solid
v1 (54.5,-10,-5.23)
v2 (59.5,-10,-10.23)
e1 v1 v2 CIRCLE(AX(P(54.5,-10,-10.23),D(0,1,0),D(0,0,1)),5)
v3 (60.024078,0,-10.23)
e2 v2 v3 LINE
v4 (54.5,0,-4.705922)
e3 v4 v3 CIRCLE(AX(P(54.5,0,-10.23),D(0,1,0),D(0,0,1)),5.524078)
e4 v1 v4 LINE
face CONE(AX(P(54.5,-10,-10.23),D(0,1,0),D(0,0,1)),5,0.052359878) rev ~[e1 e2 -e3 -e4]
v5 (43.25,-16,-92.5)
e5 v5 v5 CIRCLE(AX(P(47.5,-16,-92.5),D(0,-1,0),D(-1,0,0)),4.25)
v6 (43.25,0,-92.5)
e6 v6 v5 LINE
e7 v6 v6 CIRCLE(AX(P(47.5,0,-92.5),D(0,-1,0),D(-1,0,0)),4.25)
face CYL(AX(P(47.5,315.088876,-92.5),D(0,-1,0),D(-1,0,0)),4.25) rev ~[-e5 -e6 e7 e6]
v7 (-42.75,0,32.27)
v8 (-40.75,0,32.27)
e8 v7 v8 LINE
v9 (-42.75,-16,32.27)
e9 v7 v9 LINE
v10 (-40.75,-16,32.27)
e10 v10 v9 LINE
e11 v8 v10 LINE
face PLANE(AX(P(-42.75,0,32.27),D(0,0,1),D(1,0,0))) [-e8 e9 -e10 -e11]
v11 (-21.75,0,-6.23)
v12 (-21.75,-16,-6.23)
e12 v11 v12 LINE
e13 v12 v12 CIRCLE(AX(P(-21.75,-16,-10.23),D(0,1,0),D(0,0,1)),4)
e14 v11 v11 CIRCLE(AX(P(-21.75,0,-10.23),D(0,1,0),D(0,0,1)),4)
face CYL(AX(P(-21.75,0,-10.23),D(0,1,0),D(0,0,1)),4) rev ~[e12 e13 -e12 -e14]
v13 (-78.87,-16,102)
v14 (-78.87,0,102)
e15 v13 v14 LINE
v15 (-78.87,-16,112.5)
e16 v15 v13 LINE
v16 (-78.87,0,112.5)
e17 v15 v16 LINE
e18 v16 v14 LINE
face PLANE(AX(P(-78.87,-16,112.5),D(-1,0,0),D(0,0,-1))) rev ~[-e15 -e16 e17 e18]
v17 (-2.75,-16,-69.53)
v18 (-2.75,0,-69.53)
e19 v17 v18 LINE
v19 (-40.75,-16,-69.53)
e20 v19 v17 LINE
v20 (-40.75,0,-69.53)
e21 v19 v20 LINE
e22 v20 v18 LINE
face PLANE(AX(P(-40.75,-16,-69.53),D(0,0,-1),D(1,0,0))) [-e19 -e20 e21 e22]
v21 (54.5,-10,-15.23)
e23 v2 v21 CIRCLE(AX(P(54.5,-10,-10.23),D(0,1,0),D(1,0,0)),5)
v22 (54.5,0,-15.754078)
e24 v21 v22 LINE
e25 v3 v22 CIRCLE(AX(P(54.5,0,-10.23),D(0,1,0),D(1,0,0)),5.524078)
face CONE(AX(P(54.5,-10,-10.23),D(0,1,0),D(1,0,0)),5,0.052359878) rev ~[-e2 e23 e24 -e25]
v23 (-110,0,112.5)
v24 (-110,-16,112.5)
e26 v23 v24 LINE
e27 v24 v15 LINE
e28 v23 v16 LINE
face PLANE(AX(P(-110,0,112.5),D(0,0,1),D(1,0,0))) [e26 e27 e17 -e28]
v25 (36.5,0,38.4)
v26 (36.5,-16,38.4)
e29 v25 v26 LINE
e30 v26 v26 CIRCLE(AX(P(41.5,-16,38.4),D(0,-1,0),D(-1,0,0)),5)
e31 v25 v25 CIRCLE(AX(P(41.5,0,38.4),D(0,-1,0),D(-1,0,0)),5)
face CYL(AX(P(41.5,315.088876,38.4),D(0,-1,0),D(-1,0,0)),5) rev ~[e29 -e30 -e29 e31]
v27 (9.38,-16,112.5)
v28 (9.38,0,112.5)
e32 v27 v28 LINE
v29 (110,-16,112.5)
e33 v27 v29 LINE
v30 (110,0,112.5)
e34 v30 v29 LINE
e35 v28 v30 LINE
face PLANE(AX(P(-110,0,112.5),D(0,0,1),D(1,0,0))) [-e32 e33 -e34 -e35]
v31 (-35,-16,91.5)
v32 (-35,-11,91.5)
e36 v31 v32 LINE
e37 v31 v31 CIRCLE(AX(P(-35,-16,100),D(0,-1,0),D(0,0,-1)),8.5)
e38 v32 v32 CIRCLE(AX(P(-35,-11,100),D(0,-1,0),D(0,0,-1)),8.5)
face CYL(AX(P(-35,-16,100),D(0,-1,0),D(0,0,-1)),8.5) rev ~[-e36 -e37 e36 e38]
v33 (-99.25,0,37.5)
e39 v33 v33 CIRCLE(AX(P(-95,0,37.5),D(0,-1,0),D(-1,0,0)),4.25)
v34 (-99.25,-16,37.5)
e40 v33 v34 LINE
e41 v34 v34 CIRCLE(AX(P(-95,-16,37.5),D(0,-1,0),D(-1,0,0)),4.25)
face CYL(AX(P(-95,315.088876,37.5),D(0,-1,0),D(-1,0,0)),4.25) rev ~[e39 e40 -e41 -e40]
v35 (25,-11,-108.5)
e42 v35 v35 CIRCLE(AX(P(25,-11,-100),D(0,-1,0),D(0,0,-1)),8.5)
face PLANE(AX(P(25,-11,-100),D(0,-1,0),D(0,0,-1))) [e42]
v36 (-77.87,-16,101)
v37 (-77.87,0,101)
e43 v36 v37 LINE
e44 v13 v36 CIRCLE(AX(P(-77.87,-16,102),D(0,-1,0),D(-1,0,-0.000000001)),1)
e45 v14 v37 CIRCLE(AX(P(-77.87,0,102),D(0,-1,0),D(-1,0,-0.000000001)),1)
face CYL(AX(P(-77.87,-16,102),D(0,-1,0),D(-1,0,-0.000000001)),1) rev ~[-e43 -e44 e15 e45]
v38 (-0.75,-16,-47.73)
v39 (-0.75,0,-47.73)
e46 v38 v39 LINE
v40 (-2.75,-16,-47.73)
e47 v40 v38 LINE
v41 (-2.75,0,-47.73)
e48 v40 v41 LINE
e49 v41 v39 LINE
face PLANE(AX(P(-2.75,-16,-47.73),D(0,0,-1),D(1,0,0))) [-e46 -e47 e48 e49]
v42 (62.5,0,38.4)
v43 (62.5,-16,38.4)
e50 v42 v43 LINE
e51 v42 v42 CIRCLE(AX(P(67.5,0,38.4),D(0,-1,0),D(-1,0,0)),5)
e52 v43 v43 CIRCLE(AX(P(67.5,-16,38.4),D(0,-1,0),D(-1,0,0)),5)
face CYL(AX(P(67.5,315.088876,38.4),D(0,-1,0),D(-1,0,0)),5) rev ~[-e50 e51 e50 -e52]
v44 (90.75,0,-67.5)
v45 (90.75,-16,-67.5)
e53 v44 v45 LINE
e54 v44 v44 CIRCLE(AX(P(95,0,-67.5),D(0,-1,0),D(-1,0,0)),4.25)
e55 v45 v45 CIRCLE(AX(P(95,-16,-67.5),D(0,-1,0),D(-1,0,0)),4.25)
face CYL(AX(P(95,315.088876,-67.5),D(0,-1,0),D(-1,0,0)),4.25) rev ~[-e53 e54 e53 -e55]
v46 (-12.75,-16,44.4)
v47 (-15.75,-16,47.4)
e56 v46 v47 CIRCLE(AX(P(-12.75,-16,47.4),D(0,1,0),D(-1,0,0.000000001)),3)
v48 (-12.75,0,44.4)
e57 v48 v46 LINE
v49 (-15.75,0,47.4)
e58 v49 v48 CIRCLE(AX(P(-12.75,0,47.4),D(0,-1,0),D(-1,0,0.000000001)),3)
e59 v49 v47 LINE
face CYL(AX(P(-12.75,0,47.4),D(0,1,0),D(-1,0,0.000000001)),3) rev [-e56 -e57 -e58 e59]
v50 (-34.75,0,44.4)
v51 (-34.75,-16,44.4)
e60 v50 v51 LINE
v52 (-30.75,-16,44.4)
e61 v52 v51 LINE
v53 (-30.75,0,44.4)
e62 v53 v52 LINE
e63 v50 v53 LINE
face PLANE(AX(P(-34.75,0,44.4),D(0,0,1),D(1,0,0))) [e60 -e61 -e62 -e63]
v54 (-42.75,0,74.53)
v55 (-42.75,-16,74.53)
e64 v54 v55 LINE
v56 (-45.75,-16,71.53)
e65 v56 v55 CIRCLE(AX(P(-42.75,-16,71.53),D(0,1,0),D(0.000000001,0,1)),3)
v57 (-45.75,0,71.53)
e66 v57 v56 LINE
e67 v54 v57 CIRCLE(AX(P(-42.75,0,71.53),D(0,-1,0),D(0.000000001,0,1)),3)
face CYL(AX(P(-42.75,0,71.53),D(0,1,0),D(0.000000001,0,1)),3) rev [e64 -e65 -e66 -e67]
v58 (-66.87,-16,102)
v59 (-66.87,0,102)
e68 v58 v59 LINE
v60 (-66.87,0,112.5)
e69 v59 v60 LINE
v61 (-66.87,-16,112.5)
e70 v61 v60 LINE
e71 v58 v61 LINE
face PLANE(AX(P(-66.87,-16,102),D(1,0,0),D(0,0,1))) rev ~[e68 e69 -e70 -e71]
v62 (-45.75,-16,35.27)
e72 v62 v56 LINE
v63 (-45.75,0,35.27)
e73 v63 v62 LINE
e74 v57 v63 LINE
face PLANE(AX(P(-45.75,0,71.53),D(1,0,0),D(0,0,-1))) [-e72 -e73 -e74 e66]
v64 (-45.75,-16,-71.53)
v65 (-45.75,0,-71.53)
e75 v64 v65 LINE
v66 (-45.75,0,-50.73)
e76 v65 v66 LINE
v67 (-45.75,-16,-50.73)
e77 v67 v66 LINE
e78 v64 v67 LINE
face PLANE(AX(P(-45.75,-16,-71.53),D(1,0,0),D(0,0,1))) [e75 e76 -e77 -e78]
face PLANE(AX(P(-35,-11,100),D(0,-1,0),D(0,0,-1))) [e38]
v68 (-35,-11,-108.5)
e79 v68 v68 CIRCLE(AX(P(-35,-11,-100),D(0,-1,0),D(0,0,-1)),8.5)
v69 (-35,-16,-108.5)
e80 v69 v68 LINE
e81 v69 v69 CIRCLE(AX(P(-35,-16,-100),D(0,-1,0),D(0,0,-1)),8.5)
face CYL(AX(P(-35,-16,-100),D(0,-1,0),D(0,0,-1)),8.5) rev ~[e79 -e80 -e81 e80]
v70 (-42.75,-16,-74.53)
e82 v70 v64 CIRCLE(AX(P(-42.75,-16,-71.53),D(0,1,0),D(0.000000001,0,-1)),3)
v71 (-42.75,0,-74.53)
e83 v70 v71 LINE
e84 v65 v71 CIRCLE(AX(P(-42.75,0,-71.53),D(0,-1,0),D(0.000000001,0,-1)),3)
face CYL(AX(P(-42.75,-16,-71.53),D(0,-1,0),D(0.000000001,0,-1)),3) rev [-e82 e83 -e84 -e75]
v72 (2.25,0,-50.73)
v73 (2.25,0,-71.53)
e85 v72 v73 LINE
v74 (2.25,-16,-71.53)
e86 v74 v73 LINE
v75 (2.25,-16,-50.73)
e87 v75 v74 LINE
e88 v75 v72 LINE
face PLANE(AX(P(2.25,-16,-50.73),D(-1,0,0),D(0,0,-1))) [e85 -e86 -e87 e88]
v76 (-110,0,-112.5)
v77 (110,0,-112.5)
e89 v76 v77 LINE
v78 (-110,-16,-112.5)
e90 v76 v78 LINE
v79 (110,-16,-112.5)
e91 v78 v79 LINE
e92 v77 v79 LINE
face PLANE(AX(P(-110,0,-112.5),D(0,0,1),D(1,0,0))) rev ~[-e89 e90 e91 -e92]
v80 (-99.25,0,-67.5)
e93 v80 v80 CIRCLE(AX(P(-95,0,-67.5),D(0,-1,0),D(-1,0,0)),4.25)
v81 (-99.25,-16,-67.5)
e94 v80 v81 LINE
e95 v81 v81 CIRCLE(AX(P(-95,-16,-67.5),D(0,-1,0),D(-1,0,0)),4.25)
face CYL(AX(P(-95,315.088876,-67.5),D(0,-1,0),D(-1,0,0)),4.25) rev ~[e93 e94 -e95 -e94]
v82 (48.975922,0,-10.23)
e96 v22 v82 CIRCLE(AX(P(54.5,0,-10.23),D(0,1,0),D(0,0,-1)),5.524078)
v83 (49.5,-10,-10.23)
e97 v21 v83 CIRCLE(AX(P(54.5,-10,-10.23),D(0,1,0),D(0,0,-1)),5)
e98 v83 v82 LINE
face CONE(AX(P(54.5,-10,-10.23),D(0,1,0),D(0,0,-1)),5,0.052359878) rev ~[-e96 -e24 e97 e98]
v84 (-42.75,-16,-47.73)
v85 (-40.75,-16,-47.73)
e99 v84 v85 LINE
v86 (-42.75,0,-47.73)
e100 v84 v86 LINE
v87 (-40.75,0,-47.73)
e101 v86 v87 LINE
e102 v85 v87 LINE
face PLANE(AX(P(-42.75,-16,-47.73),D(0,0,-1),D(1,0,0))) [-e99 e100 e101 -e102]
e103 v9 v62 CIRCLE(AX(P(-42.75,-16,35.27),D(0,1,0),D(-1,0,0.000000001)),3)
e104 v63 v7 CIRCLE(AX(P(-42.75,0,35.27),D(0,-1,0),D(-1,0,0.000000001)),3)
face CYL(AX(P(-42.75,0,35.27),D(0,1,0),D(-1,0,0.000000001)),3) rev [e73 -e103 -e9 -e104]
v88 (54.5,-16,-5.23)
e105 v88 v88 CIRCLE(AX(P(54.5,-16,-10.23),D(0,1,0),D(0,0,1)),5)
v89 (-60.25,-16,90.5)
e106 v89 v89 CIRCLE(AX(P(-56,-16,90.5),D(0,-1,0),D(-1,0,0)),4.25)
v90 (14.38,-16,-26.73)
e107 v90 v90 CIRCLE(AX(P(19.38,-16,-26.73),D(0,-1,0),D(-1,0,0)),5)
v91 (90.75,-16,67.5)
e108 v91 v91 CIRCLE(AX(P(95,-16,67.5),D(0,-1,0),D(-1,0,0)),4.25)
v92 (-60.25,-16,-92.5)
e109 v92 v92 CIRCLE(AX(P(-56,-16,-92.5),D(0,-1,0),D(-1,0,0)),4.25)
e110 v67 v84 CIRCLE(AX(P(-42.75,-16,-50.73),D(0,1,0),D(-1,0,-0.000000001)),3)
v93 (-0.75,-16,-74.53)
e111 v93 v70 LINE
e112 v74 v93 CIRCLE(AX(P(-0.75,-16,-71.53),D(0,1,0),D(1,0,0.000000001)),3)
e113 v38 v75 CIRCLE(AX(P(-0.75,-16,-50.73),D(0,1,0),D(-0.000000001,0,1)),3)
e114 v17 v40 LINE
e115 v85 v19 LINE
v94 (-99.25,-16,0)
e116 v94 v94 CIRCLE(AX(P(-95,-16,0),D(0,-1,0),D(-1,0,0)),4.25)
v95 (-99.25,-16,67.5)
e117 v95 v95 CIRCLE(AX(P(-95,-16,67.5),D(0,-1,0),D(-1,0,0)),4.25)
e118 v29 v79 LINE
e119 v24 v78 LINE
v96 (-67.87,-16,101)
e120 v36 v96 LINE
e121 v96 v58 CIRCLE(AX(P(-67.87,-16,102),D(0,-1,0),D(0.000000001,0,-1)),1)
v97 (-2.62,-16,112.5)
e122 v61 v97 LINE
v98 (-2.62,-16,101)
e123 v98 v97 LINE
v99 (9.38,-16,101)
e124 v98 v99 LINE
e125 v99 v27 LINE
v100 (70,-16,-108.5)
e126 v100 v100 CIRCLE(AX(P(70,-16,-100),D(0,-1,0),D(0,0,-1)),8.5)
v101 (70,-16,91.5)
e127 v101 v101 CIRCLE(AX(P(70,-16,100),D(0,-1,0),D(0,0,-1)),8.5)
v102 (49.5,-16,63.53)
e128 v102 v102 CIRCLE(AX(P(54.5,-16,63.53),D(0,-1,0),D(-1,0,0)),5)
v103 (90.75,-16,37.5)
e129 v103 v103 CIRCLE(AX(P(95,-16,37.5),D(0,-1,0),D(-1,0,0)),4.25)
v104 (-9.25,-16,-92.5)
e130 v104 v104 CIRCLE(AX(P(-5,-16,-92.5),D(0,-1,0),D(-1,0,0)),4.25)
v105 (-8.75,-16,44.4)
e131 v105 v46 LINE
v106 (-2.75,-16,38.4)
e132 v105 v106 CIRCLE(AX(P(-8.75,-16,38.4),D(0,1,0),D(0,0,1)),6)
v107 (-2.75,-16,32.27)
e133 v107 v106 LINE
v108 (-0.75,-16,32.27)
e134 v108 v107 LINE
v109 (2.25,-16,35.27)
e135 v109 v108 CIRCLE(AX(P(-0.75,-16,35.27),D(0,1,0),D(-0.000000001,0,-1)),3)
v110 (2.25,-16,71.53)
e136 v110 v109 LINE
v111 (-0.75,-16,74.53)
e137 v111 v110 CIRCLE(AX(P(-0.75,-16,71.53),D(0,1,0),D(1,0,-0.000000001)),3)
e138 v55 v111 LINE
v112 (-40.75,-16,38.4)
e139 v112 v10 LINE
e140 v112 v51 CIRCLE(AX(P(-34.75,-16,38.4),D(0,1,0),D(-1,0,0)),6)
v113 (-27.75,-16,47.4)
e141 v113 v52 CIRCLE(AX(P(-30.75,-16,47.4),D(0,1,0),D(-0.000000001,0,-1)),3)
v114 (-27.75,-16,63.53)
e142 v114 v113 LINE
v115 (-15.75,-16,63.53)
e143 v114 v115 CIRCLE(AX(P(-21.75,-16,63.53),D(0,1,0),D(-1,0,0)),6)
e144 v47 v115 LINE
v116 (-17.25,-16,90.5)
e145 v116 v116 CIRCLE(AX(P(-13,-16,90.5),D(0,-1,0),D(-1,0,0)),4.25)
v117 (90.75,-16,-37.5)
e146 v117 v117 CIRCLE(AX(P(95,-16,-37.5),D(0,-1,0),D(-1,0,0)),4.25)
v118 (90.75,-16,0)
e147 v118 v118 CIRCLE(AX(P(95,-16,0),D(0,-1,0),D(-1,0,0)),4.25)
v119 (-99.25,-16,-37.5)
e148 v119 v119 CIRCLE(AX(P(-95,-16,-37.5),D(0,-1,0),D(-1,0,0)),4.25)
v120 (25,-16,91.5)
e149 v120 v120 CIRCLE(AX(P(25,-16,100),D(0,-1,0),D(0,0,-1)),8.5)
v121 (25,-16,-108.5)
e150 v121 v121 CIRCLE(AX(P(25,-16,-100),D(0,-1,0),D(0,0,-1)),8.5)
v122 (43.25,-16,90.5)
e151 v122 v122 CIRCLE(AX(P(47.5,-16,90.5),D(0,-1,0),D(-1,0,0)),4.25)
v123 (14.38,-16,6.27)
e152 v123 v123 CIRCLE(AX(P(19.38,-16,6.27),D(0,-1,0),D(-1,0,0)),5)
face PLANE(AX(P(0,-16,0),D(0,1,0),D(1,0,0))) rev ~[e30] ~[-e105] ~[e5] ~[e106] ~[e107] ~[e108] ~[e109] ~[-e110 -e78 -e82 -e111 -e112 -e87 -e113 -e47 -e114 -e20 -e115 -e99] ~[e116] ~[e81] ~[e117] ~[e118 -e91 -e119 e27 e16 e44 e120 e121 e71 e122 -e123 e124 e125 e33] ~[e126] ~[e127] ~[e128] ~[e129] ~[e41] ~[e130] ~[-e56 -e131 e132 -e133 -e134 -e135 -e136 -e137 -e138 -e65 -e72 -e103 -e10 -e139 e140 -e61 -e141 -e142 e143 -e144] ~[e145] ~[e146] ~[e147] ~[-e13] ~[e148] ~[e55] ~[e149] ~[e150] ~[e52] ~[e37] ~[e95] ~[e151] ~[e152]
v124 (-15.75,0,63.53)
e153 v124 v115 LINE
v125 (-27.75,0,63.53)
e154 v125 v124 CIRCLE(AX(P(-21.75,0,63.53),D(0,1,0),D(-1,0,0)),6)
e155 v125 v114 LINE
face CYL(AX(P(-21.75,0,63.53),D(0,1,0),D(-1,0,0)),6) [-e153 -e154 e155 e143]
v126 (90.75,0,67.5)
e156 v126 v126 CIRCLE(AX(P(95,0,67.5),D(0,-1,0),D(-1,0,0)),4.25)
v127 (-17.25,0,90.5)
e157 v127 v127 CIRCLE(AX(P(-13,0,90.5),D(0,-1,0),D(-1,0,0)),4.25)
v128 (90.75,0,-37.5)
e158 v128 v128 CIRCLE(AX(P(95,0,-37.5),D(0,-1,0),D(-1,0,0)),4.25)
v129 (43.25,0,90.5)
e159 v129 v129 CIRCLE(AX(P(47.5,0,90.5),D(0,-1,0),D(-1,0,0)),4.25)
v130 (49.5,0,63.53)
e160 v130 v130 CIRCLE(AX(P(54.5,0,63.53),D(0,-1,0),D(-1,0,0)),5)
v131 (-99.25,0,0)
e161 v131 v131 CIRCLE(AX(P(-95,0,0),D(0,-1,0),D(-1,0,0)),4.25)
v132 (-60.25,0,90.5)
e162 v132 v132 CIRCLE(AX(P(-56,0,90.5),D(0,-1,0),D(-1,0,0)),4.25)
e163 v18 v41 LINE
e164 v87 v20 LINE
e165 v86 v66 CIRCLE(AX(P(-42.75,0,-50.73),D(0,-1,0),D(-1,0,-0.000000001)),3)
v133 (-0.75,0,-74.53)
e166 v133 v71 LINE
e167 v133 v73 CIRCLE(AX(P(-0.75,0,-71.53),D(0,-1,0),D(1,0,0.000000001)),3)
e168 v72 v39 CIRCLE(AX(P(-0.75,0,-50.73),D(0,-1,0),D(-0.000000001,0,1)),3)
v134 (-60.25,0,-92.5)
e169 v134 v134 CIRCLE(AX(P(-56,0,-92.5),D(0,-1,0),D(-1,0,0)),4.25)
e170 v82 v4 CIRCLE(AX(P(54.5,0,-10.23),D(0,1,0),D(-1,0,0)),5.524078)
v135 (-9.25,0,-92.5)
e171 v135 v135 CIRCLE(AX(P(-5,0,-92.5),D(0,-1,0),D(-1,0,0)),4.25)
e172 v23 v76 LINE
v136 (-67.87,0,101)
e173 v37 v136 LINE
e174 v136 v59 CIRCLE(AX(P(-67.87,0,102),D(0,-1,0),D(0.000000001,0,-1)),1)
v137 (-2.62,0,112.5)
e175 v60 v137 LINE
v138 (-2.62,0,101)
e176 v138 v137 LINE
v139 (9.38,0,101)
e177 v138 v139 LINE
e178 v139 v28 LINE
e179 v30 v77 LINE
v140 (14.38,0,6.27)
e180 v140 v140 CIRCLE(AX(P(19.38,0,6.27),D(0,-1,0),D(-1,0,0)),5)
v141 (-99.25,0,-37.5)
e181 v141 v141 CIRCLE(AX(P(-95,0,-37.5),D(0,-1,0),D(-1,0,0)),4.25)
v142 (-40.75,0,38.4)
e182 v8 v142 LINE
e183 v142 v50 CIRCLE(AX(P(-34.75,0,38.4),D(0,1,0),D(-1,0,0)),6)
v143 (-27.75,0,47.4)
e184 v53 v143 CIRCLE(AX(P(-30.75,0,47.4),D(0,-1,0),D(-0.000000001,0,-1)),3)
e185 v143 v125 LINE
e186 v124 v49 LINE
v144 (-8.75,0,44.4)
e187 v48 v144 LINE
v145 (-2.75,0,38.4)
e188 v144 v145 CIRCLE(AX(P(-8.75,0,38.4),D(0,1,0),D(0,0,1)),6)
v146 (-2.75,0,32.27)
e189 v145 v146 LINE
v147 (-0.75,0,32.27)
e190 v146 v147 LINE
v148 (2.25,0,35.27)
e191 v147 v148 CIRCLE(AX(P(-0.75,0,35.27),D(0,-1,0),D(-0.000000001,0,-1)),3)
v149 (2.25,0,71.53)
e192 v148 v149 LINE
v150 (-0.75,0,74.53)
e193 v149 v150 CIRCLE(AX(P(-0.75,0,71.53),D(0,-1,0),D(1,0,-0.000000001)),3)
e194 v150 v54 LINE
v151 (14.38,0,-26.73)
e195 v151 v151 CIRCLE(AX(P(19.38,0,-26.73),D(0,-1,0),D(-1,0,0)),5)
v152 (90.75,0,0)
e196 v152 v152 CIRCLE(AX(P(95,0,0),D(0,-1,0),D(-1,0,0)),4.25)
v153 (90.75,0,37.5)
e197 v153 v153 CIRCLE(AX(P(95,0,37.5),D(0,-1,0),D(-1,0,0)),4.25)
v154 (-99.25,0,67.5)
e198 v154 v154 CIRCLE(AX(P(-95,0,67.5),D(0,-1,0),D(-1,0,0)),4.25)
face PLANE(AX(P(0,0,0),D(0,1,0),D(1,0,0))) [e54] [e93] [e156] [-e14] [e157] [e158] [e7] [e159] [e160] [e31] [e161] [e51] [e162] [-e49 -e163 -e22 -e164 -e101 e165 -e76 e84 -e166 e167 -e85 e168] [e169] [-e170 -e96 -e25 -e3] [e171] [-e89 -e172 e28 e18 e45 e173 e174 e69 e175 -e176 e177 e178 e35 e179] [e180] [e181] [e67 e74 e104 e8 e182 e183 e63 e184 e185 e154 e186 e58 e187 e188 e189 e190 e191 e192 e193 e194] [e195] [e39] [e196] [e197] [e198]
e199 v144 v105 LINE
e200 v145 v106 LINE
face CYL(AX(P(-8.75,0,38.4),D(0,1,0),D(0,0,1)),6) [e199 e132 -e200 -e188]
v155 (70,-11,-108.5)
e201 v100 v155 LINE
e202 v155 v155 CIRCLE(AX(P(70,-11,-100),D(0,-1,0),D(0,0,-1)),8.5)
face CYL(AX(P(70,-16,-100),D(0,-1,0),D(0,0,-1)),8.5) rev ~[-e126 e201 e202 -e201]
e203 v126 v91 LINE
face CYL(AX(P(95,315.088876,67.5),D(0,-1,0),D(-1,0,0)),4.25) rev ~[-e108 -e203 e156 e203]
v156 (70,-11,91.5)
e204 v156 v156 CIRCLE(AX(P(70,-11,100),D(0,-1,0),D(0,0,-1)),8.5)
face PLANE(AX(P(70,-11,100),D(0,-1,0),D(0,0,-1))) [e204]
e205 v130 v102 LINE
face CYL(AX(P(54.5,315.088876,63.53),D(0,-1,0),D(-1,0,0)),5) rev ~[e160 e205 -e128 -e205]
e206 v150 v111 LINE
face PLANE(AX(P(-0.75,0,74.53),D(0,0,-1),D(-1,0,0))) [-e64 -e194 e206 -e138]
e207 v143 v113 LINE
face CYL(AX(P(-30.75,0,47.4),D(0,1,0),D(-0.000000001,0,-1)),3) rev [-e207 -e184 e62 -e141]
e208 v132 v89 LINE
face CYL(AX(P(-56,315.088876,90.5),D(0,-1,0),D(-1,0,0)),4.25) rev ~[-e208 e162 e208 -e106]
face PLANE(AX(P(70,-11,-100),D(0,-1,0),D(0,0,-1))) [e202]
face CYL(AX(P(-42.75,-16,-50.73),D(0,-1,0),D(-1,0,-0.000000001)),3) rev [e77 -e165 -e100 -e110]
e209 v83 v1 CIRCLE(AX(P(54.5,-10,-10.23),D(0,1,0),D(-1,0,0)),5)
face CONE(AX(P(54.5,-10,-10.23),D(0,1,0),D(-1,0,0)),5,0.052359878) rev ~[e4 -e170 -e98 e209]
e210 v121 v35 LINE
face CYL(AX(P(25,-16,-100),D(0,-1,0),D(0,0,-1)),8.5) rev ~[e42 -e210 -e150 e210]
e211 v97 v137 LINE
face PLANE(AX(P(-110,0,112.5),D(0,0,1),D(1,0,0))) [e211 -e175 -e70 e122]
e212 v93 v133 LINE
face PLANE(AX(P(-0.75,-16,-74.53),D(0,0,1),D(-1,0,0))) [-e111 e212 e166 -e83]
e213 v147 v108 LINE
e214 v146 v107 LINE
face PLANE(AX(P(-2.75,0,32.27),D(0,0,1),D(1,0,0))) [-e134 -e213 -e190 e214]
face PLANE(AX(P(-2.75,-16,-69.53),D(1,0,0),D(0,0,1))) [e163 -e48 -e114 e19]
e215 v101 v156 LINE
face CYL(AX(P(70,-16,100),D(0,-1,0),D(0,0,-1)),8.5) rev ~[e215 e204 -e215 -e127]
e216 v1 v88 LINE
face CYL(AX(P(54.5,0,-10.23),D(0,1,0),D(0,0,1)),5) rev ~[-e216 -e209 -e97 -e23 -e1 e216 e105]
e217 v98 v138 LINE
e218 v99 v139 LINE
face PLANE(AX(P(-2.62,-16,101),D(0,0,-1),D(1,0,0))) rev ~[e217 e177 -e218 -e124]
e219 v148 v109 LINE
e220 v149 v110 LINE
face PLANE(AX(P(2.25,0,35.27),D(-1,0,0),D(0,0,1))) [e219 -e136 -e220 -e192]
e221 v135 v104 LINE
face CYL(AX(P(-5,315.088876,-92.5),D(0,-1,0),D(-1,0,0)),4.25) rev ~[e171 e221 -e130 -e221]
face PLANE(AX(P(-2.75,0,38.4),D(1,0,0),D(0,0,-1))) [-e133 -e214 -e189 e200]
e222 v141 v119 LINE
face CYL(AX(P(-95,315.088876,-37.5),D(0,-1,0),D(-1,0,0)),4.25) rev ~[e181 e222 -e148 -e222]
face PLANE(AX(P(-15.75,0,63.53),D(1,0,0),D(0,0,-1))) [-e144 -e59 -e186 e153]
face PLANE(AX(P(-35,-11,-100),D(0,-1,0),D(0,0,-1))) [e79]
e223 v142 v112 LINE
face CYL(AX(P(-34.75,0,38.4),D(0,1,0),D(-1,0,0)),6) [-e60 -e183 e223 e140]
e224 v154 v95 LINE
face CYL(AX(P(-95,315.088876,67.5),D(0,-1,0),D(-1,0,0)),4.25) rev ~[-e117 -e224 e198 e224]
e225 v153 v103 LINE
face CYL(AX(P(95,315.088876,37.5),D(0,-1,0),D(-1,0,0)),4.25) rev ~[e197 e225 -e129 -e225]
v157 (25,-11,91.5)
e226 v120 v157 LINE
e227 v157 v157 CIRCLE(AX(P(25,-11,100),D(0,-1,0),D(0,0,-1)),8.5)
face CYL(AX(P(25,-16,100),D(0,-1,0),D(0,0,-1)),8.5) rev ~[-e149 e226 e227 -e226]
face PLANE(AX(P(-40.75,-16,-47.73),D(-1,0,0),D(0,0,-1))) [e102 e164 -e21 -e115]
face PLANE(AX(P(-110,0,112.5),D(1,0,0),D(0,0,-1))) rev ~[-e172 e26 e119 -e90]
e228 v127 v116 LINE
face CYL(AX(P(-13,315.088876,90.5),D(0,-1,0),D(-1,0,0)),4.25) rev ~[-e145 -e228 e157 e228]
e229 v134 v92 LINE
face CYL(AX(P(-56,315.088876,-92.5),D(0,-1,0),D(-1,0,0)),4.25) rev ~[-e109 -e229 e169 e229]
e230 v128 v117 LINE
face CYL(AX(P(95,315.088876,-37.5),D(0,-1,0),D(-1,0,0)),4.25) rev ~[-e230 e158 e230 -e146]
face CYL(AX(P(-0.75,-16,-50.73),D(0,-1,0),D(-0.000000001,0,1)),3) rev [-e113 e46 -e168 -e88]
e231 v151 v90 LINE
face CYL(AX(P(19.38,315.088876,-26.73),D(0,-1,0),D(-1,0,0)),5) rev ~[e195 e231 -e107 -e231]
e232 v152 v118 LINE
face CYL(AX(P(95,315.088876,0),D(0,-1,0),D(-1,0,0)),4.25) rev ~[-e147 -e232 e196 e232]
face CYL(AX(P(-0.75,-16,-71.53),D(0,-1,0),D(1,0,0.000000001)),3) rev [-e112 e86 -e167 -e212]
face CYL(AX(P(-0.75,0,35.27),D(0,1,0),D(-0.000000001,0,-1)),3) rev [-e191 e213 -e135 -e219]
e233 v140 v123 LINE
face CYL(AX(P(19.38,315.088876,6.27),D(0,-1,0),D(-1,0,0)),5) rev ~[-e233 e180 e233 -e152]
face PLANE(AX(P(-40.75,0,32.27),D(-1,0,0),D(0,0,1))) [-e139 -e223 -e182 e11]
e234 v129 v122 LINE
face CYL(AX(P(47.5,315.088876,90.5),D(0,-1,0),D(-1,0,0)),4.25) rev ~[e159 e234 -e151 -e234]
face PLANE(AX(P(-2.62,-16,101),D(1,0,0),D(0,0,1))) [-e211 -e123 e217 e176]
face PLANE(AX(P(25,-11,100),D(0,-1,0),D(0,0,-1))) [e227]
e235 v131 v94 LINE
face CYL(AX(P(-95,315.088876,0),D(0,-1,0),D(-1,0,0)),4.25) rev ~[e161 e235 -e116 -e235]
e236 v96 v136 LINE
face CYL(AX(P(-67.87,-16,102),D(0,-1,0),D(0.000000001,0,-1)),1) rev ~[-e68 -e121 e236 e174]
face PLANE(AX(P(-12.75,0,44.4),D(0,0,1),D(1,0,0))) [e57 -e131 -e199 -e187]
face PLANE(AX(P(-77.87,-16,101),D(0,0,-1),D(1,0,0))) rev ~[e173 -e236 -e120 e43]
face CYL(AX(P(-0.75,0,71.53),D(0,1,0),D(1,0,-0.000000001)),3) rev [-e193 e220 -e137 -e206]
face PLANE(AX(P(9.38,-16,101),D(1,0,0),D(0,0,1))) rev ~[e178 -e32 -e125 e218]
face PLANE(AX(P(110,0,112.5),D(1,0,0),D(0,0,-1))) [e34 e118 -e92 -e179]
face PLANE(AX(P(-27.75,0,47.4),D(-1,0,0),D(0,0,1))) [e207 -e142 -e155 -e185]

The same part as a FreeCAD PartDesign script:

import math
import FreeCAD as App
import Part
import Sketcher

V = App.Vector
Q = App.Units.Quantity


def add_polygon(sketch, points):
    """Adds a closed chain of lines whose ends are joined by coincident constraints."""
    first, n = sketch.GeometryCount, len(points)
    for a, b in zip(points, points[1:] + points[:1]):
        sketch.addGeometry(Part.LineSegment(App.Vector(*a, 0), App.Vector(*b, 0)), False)
    for i in range(n):
        sketch.addConstraint(Sketcher.Constraint("Coincident", first + i, 2, first + (i + 1) % n, 1))

doc = App.newDocument("Part")
body = doc.addObject("PartDesign::Body", "Body")

sketch1 = body.newObject("Sketcher::SketchObject", "Sketch")
sketch1.AttachmentSupport = (doc.getObject("XZ_Plane"), [""])
sketch1.MapMode = "FlatFace"
add_polygon(sketch1, [(-110, -112.5), (-110, 112.5), (110, 112.5), (110, -112.5)])
sketch1.addConstraint(Sketcher.Constraint("Vertical", 0))
sketch1.addConstraint(Sketcher.Constraint("Horizontal", 1))
sketch1.addConstraint(Sketcher.Constraint("Vertical", 2))
sketch1.addConstraint(Sketcher.Constraint("Horizontal", 3))
sketch1.addConstraint(Sketcher.Constraint("Symmetric", 0, 2, 2, 2, -1, 1))
sketch1.addConstraint(Sketcher.Constraint("DistanceX", 1, 1, 1, 2, 220.0))
sketch1.addConstraint(Sketcher.Constraint("DistanceY", 0, 1, 0, 2, 225.0))
pad1 = body.newObject("PartDesign::Pad", "Pad")
pad1.Profile = sketch1
pad1.Length = 16

sketch2 = body.newObject("Sketcher::SketchObject", "Sketch001")
sketch2.AttachmentSupport = (doc.getObject("XZ_Plane"), [""])
sketch2.MapMode = "FlatFace"
sketch2.addGeometry(Part.Circle(V(-21.75, -10.23, 0), V(0, 0, 1), 4), False)
sketch2.addConstraint(Sketcher.Constraint("Diameter", 0, 8.0))
sketch2.addConstraint(Sketcher.Constraint("DistanceX", 0, 3, -1, 1, 21.75))
sketch2.addConstraint(Sketcher.Constraint("DistanceY", 0, 3, -1, 1, 10.23))
pocket1 = body.newObject("PartDesign::Pocket", "Pocket")
pocket1.Profile = sketch2
pocket1.Type = "UpToFirst"
pocket1.Reversed = True

sketch3 = body.newObject("Sketcher::SketchObject", "Sketch002")
sketch3.AttachmentSupport = (doc.getObject("XZ_Plane"), [""])
sketch3.MapMode = "FlatFace"
sketch3.AttachmentOffset = App.Placement(V(0, 0, 16), App.Rotation())
sketch3.addGeometry(Part.LineSegment(V(-77.87, 101, 0), V(-67.87, 101, 0)), False)
sketch3.addGeometry(Part.ArcOfCircle(Part.Circle(V(-67.87, 102, 0), V(0, 0, 1), 1), math.radians(-90), math.radians(0)), False)
sketch3.addGeometry(Part.LineSegment(V(-66.87, 102, 0), V(-66.87, 112.5, 0)), False)
sketch3.addGeometry(Part.LineSegment(V(-66.87, 112.5, 0), V(-78.87, 112.5, 0)), False)
sketch3.addGeometry(Part.LineSegment(V(-78.87, 112.5, 0), V(-78.87, 102, 0)), False)
sketch3.addGeometry(Part.ArcOfCircle(Part.Circle(V(-77.87, 102, 0), V(0, 0, 1), 1), math.radians(-180), math.radians(-90)), False)
sketch3.addConstraint(Sketcher.Constraint("Tangent", 0, 2, 1, 1))
sketch3.addConstraint(Sketcher.Constraint("Tangent", 1, 2, 2, 1))
sketch3.addConstraint(Sketcher.Constraint("Coincident", 2, 2, 3, 1))
sketch3.addConstraint(Sketcher.Constraint("Coincident", 3, 2, 4, 1))
sketch3.addConstraint(Sketcher.Constraint("Tangent", 4, 2, 5, 1))
sketch3.addConstraint(Sketcher.Constraint("Tangent", 5, 2, 0, 1))
sketch3.addConstraint(Sketcher.Constraint("Horizontal", 0))
sketch3.addConstraint(Sketcher.Constraint("Vertical", 2))
sketch3.addConstraint(Sketcher.Constraint("Horizontal", 3))
sketch3.addConstraint(Sketcher.Constraint("Vertical", 4))
sketch3.addConstraint(Sketcher.Constraint("Equal", 1, 5))
sketch3.addConstraint(Sketcher.Constraint("Radius", 1, 1.0))
sketch3.addConstraint(Sketcher.Constraint("DistanceX", 0, 1, 0, 2, 10.0))
sketch3.addConstraint(Sketcher.Constraint("DistanceY", 2, 1, 2, 2, 10.5))
sketch3.addConstraint(Sketcher.Constraint("DistanceY", -1, 1, 1, 3, 102.0))
sketch3.addConstraint(Sketcher.Constraint("DistanceX", 1, 3, -1, 1, 67.87))
pocket2 = body.newObject("PartDesign::Pocket", "Pocket001")
pocket2.Profile = sketch3
pocket2.Type = "UpToFirst"

sketch4 = body.newObject("Sketcher::SketchObject", "Sketch003")
sketch4.AttachmentSupport = (doc.getObject("XZ_Plane"), [""])
sketch4.MapMode = "FlatFace"
sketch4.AttachmentOffset = App.Placement(V(0, 0, 16), App.Rotation())
add_polygon(sketch4, [(-2.62, 112.5), (-2.62, 101), (9.38, 101), (9.38, 112.5)])
sketch4.addConstraint(Sketcher.Constraint("Vertical", 0))
sketch4.addConstraint(Sketcher.Constraint("Horizontal", 1))
sketch4.addConstraint(Sketcher.Constraint("Vertical", 2))
sketch4.addConstraint(Sketcher.Constraint("Horizontal", 3))
sketch4.addConstraint(Sketcher.Constraint("DistanceX", 1, 1, 1, 2, 12.0))
sketch4.addConstraint(Sketcher.Constraint("DistanceY", 0, 2, 0, 1, 11.5))
sketch4.addConstraint(Sketcher.Constraint("DistanceY", -1, 1, 0, 2, 101.0))
sketch4.addConstraint(Sketcher.Constraint("DistanceX", 0, 2, -1, 1, 2.62))
pocket3 = body.newObject("PartDesign::Pocket", "Pocket002")
pocket3.Profile = sketch4
pocket3.Type = "UpToFirst"

sketch5 = body.newObject("Sketcher::SketchObject", "Sketch004")
sketch5.AttachmentSupport = (doc.getObject("XZ_Plane"), [""])
sketch5.MapMode = "FlatFace"
sketch5.AttachmentOffset = App.Placement(V(0, 0, 16), App.Rotation())
sketch5.addGeometry(Part.Circle(V(-35, 100, 0), V(0, 0, 1), 8.5), False)
sketch5.addGeometry(Part.Circle(V(25, 100, 0), V(0, 0, 1), 8.5), False)
sketch5.addGeometry(Part.Circle(V(70, 100, 0), V(0, 0, 1), 8.5), False)
sketch5.addGeometry(Part.Circle(V(-35, -100, 0), V(0, 0, 1), 8.5), False)
sketch5.addGeometry(Part.Circle(V(25, -100, 0), V(0, 0, 1), 8.5), False)
sketch5.addGeometry(Part.Circle(V(70, -100, 0), V(0, 0, 1), 8.5), False)
sketch5.addConstraint(Sketcher.Constraint("Equal", 0, 1))
sketch5.addConstraint(Sketcher.Constraint("Equal", 1, 2))
sketch5.addConstraint(Sketcher.Constraint("Equal", 2, 3))
sketch5.addConstraint(Sketcher.Constraint("Equal", 3, 4))
sketch5.addConstraint(Sketcher.Constraint("Equal", 4, 5))
sketch5.addConstraint(Sketcher.Constraint("Symmetric", 0, 3, 3, 3, -1))
sketch5.addConstraint(Sketcher.Constraint("Symmetric", 1, 3, 4, 3, -1))
sketch5.addConstraint(Sketcher.Constraint("Symmetric", 2, 3, 5, 3, -1))
sketch5.addConstraint(Sketcher.Constraint("Horizontal", 0, 3, 1, 3))
sketch5.addConstraint(Sketcher.Constraint("Horizontal", 1, 3, 2, 3))
sketch5.addConstraint(Sketcher.Constraint("Diameter", 0, 17.0))
sketch5.addConstraint(Sketcher.Constraint("DistanceX", 0, 3, -1, 1, 35.0))
sketch5.addConstraint(Sketcher.Constraint("DistanceY", -1, 1, 0, 3, 100.0))
sketch5.addConstraint(Sketcher.Constraint("DistanceX", -1, 1, 1, 3, 25.0))
sketch5.addConstraint(Sketcher.Constraint("DistanceX", -1, 1, 2, 3, 70.0))
pocket4 = body.newObject("PartDesign::Pocket", "Pocket003")
pocket4.Profile = sketch5
pocket4.Length = 5

sketch6 = body.newObject("Sketcher::SketchObject", "Sketch005")
sketch6.AttachmentSupport = (doc.getObject("XZ_Plane"), [""])
sketch6.MapMode = "FlatFace"
sketch6.addGeometry(Part.Circle(V(-95, 67.5, 0), V(0, 0, 1), 4.25), False)
sketch6.addGeometry(Part.Circle(V(-95, 37.5, 0), V(0, 0, 1), 4.25), False)
sketch6.addGeometry(Part.Circle(V(-95, 0, 0), V(0, 0, 1), 4.25), False)
sketch6.addGeometry(Part.Circle(V(-95, -37.5, 0), V(0, 0, 1), 4.25), False)
sketch6.addGeometry(Part.Circle(V(-95, -67.5, 0), V(0, 0, 1), 4.25), False)
sketch6.addGeometry(Part.Circle(V(95, -67.5, 0), V(0, 0, 1), 4.25), False)
sketch6.addGeometry(Part.Circle(V(95, -37.5, 0), V(0, 0, 1), 4.25), False)
sketch6.addGeometry(Part.Circle(V(95, 0, 0), V(0, 0, 1), 4.25), False)
sketch6.addGeometry(Part.Circle(V(95, 37.5, 0), V(0, 0, 1), 4.25), False)
sketch6.addGeometry(Part.Circle(V(95, 67.5, 0), V(0, 0, 1), 4.25), False)
sketch6.addConstraint(Sketcher.Constraint("Equal", 0, 1))
sketch6.addConstraint(Sketcher.Constraint("Equal", 1, 2))
sketch6.addConstraint(Sketcher.Constraint("Equal", 2, 3))
sketch6.addConstraint(Sketcher.Constraint("Equal", 3, 4))
sketch6.addConstraint(Sketcher.Constraint("Equal", 4, 5))
sketch6.addConstraint(Sketcher.Constraint("Equal", 5, 6))
sketch6.addConstraint(Sketcher.Constraint("Equal", 6, 7))
sketch6.addConstraint(Sketcher.Constraint("Equal", 7, 8))
sketch6.addConstraint(Sketcher.Constraint("Equal", 8, 9))
sketch6.addConstraint(Sketcher.Constraint("Symmetric", 0, 3, 5, 3, -1, 1))
sketch6.addConstraint(Sketcher.Constraint("Symmetric", 1, 3, 6, 3, -1, 1))
sketch6.addConstraint(Sketcher.Constraint("Symmetric", 2, 3, 7, 3, -1, 1))
sketch6.addConstraint(Sketcher.Constraint("Symmetric", 3, 3, 8, 3, -1, 1))
sketch6.addConstraint(Sketcher.Constraint("Symmetric", 4, 3, 9, 3, -1, 1))
sketch6.addConstraint(Sketcher.Constraint("Symmetric", 4, 3, 5, 3, -2))
sketch6.addConstraint(Sketcher.Constraint("Symmetric", 3, 3, 6, 3, -2))
sketch6.addConstraint(Sketcher.Constraint("PointOnObject", 2, 3, -1))
sketch6.addConstraint(Sketcher.Constraint("Vertical", 0, 3, 1, 3))
sketch6.addConstraint(Sketcher.Constraint("Vertical", 1, 3, 2, 3))
sketch6.addConstraint(Sketcher.Constraint("Diameter", 0, 8.5))
sketch6.addConstraint(Sketcher.Constraint("DistanceX", 0, 3, -1, 1, 95.0))
sketch6.addConstraint(Sketcher.Constraint("DistanceY", 1, 3, 0, 3, 30.0))
sketch6.addConstraint(Sketcher.Constraint("DistanceY", 3, 3, 1, 3, 75.0))
doc.recompute()
hole = body.newObject("PartDesign::Hole", "Hole")
hole.Profile = sketch6
hole.ThreadType = "None"
hole.Diameter = 8.5
hole.DepthType = "ThroughAll"
hole.Reversed = True

sketch7 = body.newObject("Sketcher::SketchObject", "Sketch006")
sketch7.AttachmentSupport = (doc.getObject("XZ_Plane"), [""])
sketch7.MapMode = "FlatFace"
sketch7.addGeometry(Part.Circle(V(-56, -92.5, 0), V(0, 0, 1), 4.25), False)
sketch7.addGeometry(Part.Circle(V(-5, -92.5, 0), V(0, 0, 1), 4.25), False)
sketch7.addGeometry(Part.Circle(V(47.5, -92.5, 0), V(0, 0, 1), 4.25), False)
sketch7.addConstraint(Sketcher.Constraint("Equal", 0, 1))
sketch7.addConstraint(Sketcher.Constraint("Equal", 1, 2))
sketch7.addConstraint(Sketcher.Constraint("Horizontal", 0, 3, 1, 3))
sketch7.addConstraint(Sketcher.Constraint("Horizontal", 1, 3, 2, 3))
sketch7.addConstraint(Sketcher.Constraint("Diameter", 0, 8.5))
sketch7.addConstraint(Sketcher.Constraint("DistanceX", 0, 3, -1, 1, 56.0))
sketch7.addConstraint(Sketcher.Constraint("DistanceX", 1, 3, -1, 1, 5.0))
sketch7.addConstraint(Sketcher.Constraint("DistanceY", 0, 3, -1, 1, 92.5))
sketch7.addConstraint(Sketcher.Constraint("DistanceX", -1, 1, 2, 3, 47.5))
doc.recompute()
hole2 = body.newObject("PartDesign::Hole", "Hole001")
hole2.Profile = sketch7
hole2.ThreadType = "None"
hole2.Diameter = 8.5
hole2.DepthType = "ThroughAll"
hole2.Reversed = True

sketch8 = body.newObject("Sketcher::SketchObject", "Sketch007")
sketch8.AttachmentSupport = (doc.getObject("XZ_Plane"), [""])
sketch8.MapMode = "FlatFace"
sketch8.addGeometry(Part.Circle(V(-13, 90.5, 0), V(0, 0, 1), 4.25), False)
sketch8.addGeometry(Part.Circle(V(47.5, 90.5, 0), V(0, 0, 1), 4.25), False)
sketch8.addGeometry(Part.Circle(V(-56, 90.5, 0), V(0, 0, 1), 4.25), False)
sketch8.addConstraint(Sketcher.Constraint("Equal", 0, 1))
sketch8.addConstraint(Sketcher.Constraint("Equal", 1, 2))
sketch8.addConstraint(Sketcher.Constraint("Horizontal", 0, 3, 1, 3))
sketch8.addConstraint(Sketcher.Constraint("Horizontal", 1, 3, 2, 3))
sketch8.addConstraint(Sketcher.Constraint("Diameter", 0, 8.5))
sketch8.addConstraint(Sketcher.Constraint("DistanceX", 0, 3, -1, 1, 13.0))
sketch8.addConstraint(Sketcher.Constraint("DistanceX", 2, 3, -1, 1, 56.0))
sketch8.addConstraint(Sketcher.Constraint("DistanceY", -1, 1, 0, 3, 90.5))
sketch8.addConstraint(Sketcher.Constraint("DistanceX", -1, 1, 1, 3, 47.5))
doc.recompute()
hole3 = body.newObject("PartDesign::Hole", "Hole002")
hole3.Profile = sketch8
hole3.ThreadType = "None"
hole3.Diameter = 8.5
hole3.DepthType = "ThroughAll"
hole3.Reversed = True

sketch9 = body.newObject("Sketcher::SketchObject", "Sketch008")
sketch9.AttachmentSupport = (doc.getObject("XZ_Plane"), [""])
sketch9.MapMode = "FlatFace"
sketch9.addGeometry(Part.LineSegment(V(2.25, 71.53, 0), V(2.25, 35.27, 0)), False)
sketch9.addGeometry(Part.ArcOfCircle(Part.Circle(V(-0.75, 35.27, 0), V(0, 0, 1), 3), math.radians(-90), math.radians(0)), False)
sketch9.addGeometry(Part.LineSegment(V(-0.75, 32.27, 0), V(-2.75, 32.27, 0)), False)
sketch9.addGeometry(Part.LineSegment(V(-2.75, 32.27, 0), V(-2.75, 38.4, 0)), False)
sketch9.addGeometry(Part.ArcOfCircle(Part.Circle(V(-8.75, 38.4, 0), V(0, 0, 1), 6), math.radians(0), math.radians(90)), False)
sketch9.addGeometry(Part.LineSegment(V(-8.75, 44.4, 0), V(-12.75, 44.4, 0)), False)
sketch9.addGeometry(Part.ArcOfCircle(Part.Circle(V(-12.75, 47.4, 0), V(0, 0, 1), 3), math.radians(180), math.radians(270)), False)
sketch9.addGeometry(Part.LineSegment(V(-15.75, 47.4, 0), V(-15.75, 63.53, 0)), False)
sketch9.addGeometry(Part.ArcOfCircle(Part.Circle(V(-21.75, 63.53, 0), V(0, 0, 1), 6), math.radians(0), math.radians(180)), False)
sketch9.addGeometry(Part.LineSegment(V(-27.75, 63.53, 0), V(-27.75, 47.4, 0)), False)
sketch9.addGeometry(Part.ArcOfCircle(Part.Circle(V(-30.75, 47.4, 0), V(0, 0, 1), 3), math.radians(-90), math.radians(0)), False)
sketch9.addGeometry(Part.LineSegment(V(-30.75, 44.4, 0), V(-34.75, 44.4, 0)), False)
sketch9.addGeometry(Part.ArcOfCircle(Part.Circle(V(-34.75, 38.4, 0), V(0, 0, 1), 6), math.radians(90), math.radians(180)), False)
sketch9.addGeometry(Part.LineSegment(V(-40.75, 38.4, 0), V(-40.75, 32.27, 0)), False)
sketch9.addGeometry(Part.LineSegment(V(-40.75, 32.27, 0), V(-42.75, 32.27, 0)), False)
sketch9.addGeometry(Part.ArcOfCircle(Part.Circle(V(-42.75, 35.27, 0), V(0, 0, 1), 3), math.radians(180), math.radians(270)), False)
sketch9.addGeometry(Part.LineSegment(V(-45.75, 35.27, 0), V(-45.75, 71.53, 0)), False)
sketch9.addGeometry(Part.ArcOfCircle(Part.Circle(V(-42.75, 71.53, 0), V(0, 0, 1), 3), math.radians(90), math.radians(180)), False)
sketch9.addGeometry(Part.LineSegment(V(-42.75, 74.53, 0), V(-0.75, 74.53, 0)), False)
sketch9.addGeometry(Part.ArcOfCircle(Part.Circle(V(-0.75, 71.53, 0), V(0, 0, 1), 3), math.radians(0), math.radians(90)), False)
sketch9.addConstraint(Sketcher.Constraint("Tangent", 0, 2, 1, 2))
sketch9.addConstraint(Sketcher.Constraint("Tangent", 1, 1, 2, 1))
sketch9.addConstraint(Sketcher.Constraint("Coincident", 2, 2, 3, 1))
sketch9.addConstraint(Sketcher.Constraint("Tangent", 3, 2, 4, 1))
sketch9.addConstraint(Sketcher.Constraint("Tangent", 4, 2, 5, 1))
sketch9.addConstraint(Sketcher.Constraint("Tangent", 5, 2, 6, 2))
sketch9.addConstraint(Sketcher.Constraint("Tangent", 6, 1, 7, 1))
sketch9.addConstraint(Sketcher.Constraint("Tangent", 7, 2, 8, 1))
sketch9.addConstraint(Sketcher.Constraint("Tangent", 8, 2, 9, 1))
sketch9.addConstraint(Sketcher.Constraint("Tangent", 9, 2, 10, 2))
sketch9.addConstraint(Sketcher.Constraint("Tangent", 10, 1, 11, 1))
sketch9.addConstraint(Sketcher.Constraint("Tangent", 11, 2, 12, 1))
sketch9.addConstraint(Sketcher.Constraint("Tangent", 12, 2, 13, 1))
sketch9.addConstraint(Sketcher.Constraint("Coincident", 13, 2, 14, 1))
sketch9.addConstraint(Sketcher.Constraint("Tangent", 14, 2, 15, 2))
sketch9.addConstraint(Sketcher.Constraint("Tangent", 15, 1, 16, 1))
sketch9.addConstraint(Sketcher.Constraint("Tangent", 16, 2, 17, 2))
sketch9.addConstraint(Sketcher.Constraint("Tangent", 17, 1, 18, 1))
sketch9.addConstraint(Sketcher.Constraint("Tangent", 18, 2, 19, 2))
sketch9.addConstraint(Sketcher.Constraint("Tangent", 19, 1, 0, 1))
sketch9.addConstraint(Sketcher.Constraint("Vertical", 0))
sketch9.addConstraint(Sketcher.Constraint("Horizontal", 2))
sketch9.addConstraint(Sketcher.Constraint("Vertical", 3))
sketch9.addConstraint(Sketcher.Constraint("Horizontal", 5))
sketch9.addConstraint(Sketcher.Constraint("Vertical", 7))
sketch9.addConstraint(Sketcher.Constraint("Vertical", 9))
sketch9.addConstraint(Sketcher.Constraint("Horizontal", 11))
sketch9.addConstraint(Sketcher.Constraint("Vertical", 13))
sketch9.addConstraint(Sketcher.Constraint("Horizontal", 14))
sketch9.addConstraint(Sketcher.Constraint("Vertical", 16))
sketch9.addConstraint(Sketcher.Constraint("Horizontal", 18))
sketch9.addConstraint(Sketcher.Constraint("Equal", 1, 6))
sketch9.addConstraint(Sketcher.Constraint("Equal", 4, 8))
sketch9.addConstraint(Sketcher.Constraint("Equal", 6, 10))
sketch9.addConstraint(Sketcher.Constraint("Equal", 8, 12))
sketch9.addConstraint(Sketcher.Constraint("Equal", 10, 15))
sketch9.addConstraint(Sketcher.Constraint("Equal", 15, 17))
sketch9.addConstraint(Sketcher.Constraint("Equal", 17, 19))
sketch9.addConstraint(Sketcher.Constraint("Horizontal", 6, 3, 10, 3))
sketch9.addConstraint(Sketcher.Constraint("Horizontal", 1, 3, 15, 3))
sketch9.addConstraint(Sketcher.Constraint("Equal", 5, 11))
sketch9.addConstraint(Sketcher.Constraint("Equal", 2, 14))
sketch9.addConstraint(Sketcher.Constraint("Radius", 1, 3.0))
sketch9.addConstraint(Sketcher.Constraint("Radius", 4, 6.0))
sketch9.addConstraint(Sketcher.Constraint("DistanceX", 2, 2, 2, 1, 2.0))
sketch9.addConstraint(Sketcher.Constraint("DistanceX", 5, 2, 5, 1, 4.0))
sketch9.addConstraint(Sketcher.Constraint("DistanceY", 8, 3, 17, 3, 8.0))
sketch9.addConstraint(Sketcher.Constraint("DistanceY", 0, 2, 0, 1, 36.26))
sketch9.addConstraint(Sketcher.Constraint("DistanceY", 3, 1, 3, 2, 6.13))
sketch9.addConstraint(Sketcher.Constraint("DistanceY", -1, 1, 4, 3, 38.4))
sketch9.addConstraint(Sketcher.Constraint("DistanceX", 1, 3, -1, 1, 0.75))
pocket5 = body.newObject("PartDesign::Pocket", "Pocket004")
pocket5.Profile = sketch9
pocket5.Type = "UpToFirst"
pocket5.Reversed = True

sketch10 = body.newObject("Sketcher::SketchObject", "Sketch009")
sketch10.AttachmentSupport = (doc.getObject("XZ_Plane"), [""])
sketch10.MapMode = "FlatFace"
sketch10.AttachmentOffset = App.Placement(V(0, 0, 16), App.Rotation())
sketch10.addGeometry(Part.LineSegment(V(-0.75, -47.73, 0), V(-2.75, -47.73, 0)), False)
sketch10.addGeometry(Part.LineSegment(V(-2.75, -47.73, 0), V(-2.75, -69.53, 0)), False)
sketch10.addGeometry(Part.LineSegment(V(-2.75, -69.53, 0), V(-40.75, -69.53, 0)), False)
sketch10.addGeometry(Part.LineSegment(V(-40.75, -69.53, 0), V(-40.75, -47.73, 0)), False)
sketch10.addGeometry(Part.LineSegment(V(-40.75, -47.73, 0), V(-42.75, -47.73, 0)), False)
sketch10.addGeometry(Part.ArcOfCircle(Part.Circle(V(-42.75, -50.73, 0), V(0, 0, 1), 3), math.radians(90), math.radians(180)), False)
sketch10.addGeometry(Part.LineSegment(V(-45.75, -50.73, 0), V(-45.75, -71.53, 0)), False)
sketch10.addGeometry(Part.ArcOfCircle(Part.Circle(V(-42.75, -71.53, 0), V(0, 0, 1), 3), math.radians(180), math.radians(270)), False)
sketch10.addGeometry(Part.LineSegment(V(-42.75, -74.53, 0), V(-0.75, -74.53, 0)), False)
sketch10.addGeometry(Part.ArcOfCircle(Part.Circle(V(-0.75, -71.53, 0), V(0, 0, 1), 3), math.radians(-90), math.radians(0)), False)
sketch10.addGeometry(Part.LineSegment(V(2.25, -71.53, 0), V(2.25, -50.73, 0)), False)
sketch10.addGeometry(Part.ArcOfCircle(Part.Circle(V(-0.75, -50.73, 0), V(0, 0, 1), 3), math.radians(0), math.radians(90)), False)
sketch10.addConstraint(Sketcher.Constraint("Coincident", 0, 2, 1, 1))
sketch10.addConstraint(Sketcher.Constraint("Coincident", 1, 2, 2, 1))
sketch10.addConstraint(Sketcher.Constraint("Coincident", 2, 2, 3, 1))
sketch10.addConstraint(Sketcher.Constraint("Coincident", 3, 2, 4, 1))
sketch10.addConstraint(Sketcher.Constraint("Tangent", 4, 2, 5, 1))
sketch10.addConstraint(Sketcher.Constraint("Tangent", 5, 2, 6, 1))
sketch10.addConstraint(Sketcher.Constraint("Tangent", 6, 2, 7, 1))
sketch10.addConstraint(Sketcher.Constraint("Tangent", 7, 2, 8, 1))
sketch10.addConstraint(Sketcher.Constraint("Tangent", 8, 2, 9, 1))
sketch10.addConstraint(Sketcher.Constraint("Tangent", 9, 2, 10, 1))
sketch10.addConstraint(Sketcher.Constraint("Tangent", 10, 2, 11, 1))
sketch10.addConstraint(Sketcher.Constraint("Tangent", 11, 2, 0, 1))
sketch10.addConstraint(Sketcher.Constraint("Horizontal", 0))
sketch10.addConstraint(Sketcher.Constraint("Vertical", 1))
sketch10.addConstraint(Sketcher.Constraint("Horizontal", 2))
sketch10.addConstraint(Sketcher.Constraint("Vertical", 3))
sketch10.addConstraint(Sketcher.Constraint("Horizontal", 4))
sketch10.addConstraint(Sketcher.Constraint("Vertical", 6))
sketch10.addConstraint(Sketcher.Constraint("Horizontal", 8))
sketch10.addConstraint(Sketcher.Constraint("Vertical", 10))
sketch10.addConstraint(Sketcher.Constraint("Equal", 5, 7))
sketch10.addConstraint(Sketcher.Constraint("Equal", 7, 9))
sketch10.addConstraint(Sketcher.Constraint("Equal", 9, 11))
sketch10.addConstraint(Sketcher.Constraint("Horizontal", 5, 3, 11, 3))
sketch10.addConstraint(Sketcher.Constraint("Equal", 0, 4))
sketch10.addConstraint(Sketcher.Constraint("Radius", 5, 3.0))
sketch10.addConstraint(Sketcher.Constraint("DistanceX", 0, 2, 0, 1, 2.0))
sketch10.addConstraint(Sketcher.Constraint("DistanceX", 2, 2, 2, 1, 38.0))
sketch10.addConstraint(Sketcher.Constraint("DistanceY", 1, 2, 1, 1, 21.8))
sketch10.addConstraint(Sketcher.Constraint("DistanceY", 6, 2, 6, 1, 20.8))
sketch10.addConstraint(Sketcher.Constraint("DistanceX", 5, 3, -1, 1, 42.75))
sketch10.addConstraint(Sketcher.Constraint("DistanceY", 5, 3, -1, 1, 50.73))
pocket6 = body.newObject("PartDesign::Pocket", "Pocket005")
pocket6.Profile = sketch10
pocket6.Type = "UpToFirst"

sketch11 = body.newObject("Sketcher::SketchObject", "Sketch010")
sketch11.AttachmentSupport = (doc.getObject("XZ_Plane"), [""])
sketch11.MapMode = "FlatFace"
sketch11.addGeometry(Part.Circle(V(54.5, 63.53, 0), V(0, 0, 1), 5), False)
sketch11.addGeometry(Part.Circle(V(67.5, 38.4, 0), V(0, 0, 1), 5), False)
sketch11.addGeometry(Part.Circle(V(41.5, 38.4, 0), V(0, 0, 1), 5), False)
sketch11.addGeometry(Part.Circle(V(19.38, -26.73, 0), V(0, 0, 1), 5), False)
sketch11.addGeometry(Part.Circle(V(19.38, 6.27, 0), V(0, 0, 1), 5), False)
sketch11.addConstraint(Sketcher.Constraint("Equal", 0, 1))
sketch11.addConstraint(Sketcher.Constraint("Equal", 1, 2))
sketch11.addConstraint(Sketcher.Constraint("Equal", 2, 3))
sketch11.addConstraint(Sketcher.Constraint("Equal", 3, 4))
sketch11.addConstraint(Sketcher.Constraint("Horizontal", 1, 3, 2, 3))
sketch11.addConstraint(Sketcher.Constraint("Vertical", 3, 3, 4, 3))
sketch11.addConstraint(Sketcher.Constraint("Diameter", 0, 10.0))
sketch11.addConstraint(Sketcher.Constraint("DistanceX", 0, 3, 1, 3, 13.0))
sketch11.addConstraint(Sketcher.Constraint("DistanceX", 2, 3, 1, 3, 26.0))
sketch11.addConstraint(Sketcher.Constraint("DistanceY", 3, 3, 4, 3, 33.0))
sketch11.addConstraint(Sketcher.Constraint("DistanceX", -1, 1, 0, 3, 54.5))
sketch11.addConstraint(Sketcher.Constraint("DistanceY", -1, 1, 1, 3, 38.4))
sketch11.addConstraint(Sketcher.Constraint("DistanceY", -1, 1, 0, 3, 63.53))
sketch11.addConstraint(Sketcher.Constraint("DistanceX", -1, 1, 3, 3, 19.38))
sketch11.addConstraint(Sketcher.Constraint("DistanceY", 3, 3, -1, 1, 26.73))
doc.recompute()
hole4 = body.newObject("PartDesign::Hole", "Hole003")
hole4.Profile = sketch11
hole4.ThreadType = "None"
hole4.Diameter = 10
hole4.DepthType = "ThroughAll"
hole4.Reversed = True

sketch12 = body.newObject("Sketcher::SketchObject", "Sketch011")
sketch12.AttachmentSupport = (doc.getObject("XZ_Plane"), [""])
sketch12.MapMode = "FlatFace"
sketch12.addGeometry(Part.Circle(V(54.5, -10.23, 0), V(0, 0, 1), 5), False)
sketch12.addConstraint(Sketcher.Constraint("Diameter", 0, 10.0))
sketch12.addConstraint(Sketcher.Constraint("DistanceX", -1, 1, 0, 3, 54.5))
sketch12.addConstraint(Sketcher.Constraint("DistanceY", 0, 3, -1, 1, 10.23))
pocket7 = body.newObject("PartDesign::Pocket", "Pocket006")
pocket7.Profile = sketch12
pocket7.Type = "UpToFirst"
pocket7.Reversed = True

sketch13 = body.newObject("Sketcher::SketchObject", "Sketch012")
sketch13.AttachmentSupport = (doc.getObject("XY_Plane"), [""])
sketch13.MapMode = "FlatFace"
sketch13.AttachmentOffset = App.Placement(V(0, 0, -10.23), App.Rotation())
add_polygon(sketch13, [(59.5, -10), (60.024078, 0), (59.5, 0)])
sketch13.addConstraint(Sketcher.Constraint("Horizontal", 1))
sketch13.addConstraint(Sketcher.Constraint("Vertical", 2))
sketch13.addConstraint(Sketcher.Constraint("PointOnObject", 0, 2, -1))
sketch13.addConstraint(Sketcher.Constraint("DistanceY", 2, 2, 2, 1, 10.0))
sketch13.addConstraint(Sketcher.Constraint("Angle", 0, Q("87 deg")))
sketch13.addConstraint(Sketcher.Constraint("DistanceX", -1, 1, 1, 2, 59.5))

sketch14 = body.newObject("Sketcher::SketchObject", "Sketch013")
sketch14.AttachmentSupport = (doc.getObject("XZ_Plane"), [""])
sketch14.MapMode = "FlatFace"
sketch14.addGeometry(Part.ArcOfCircle(Part.Circle(V(54.5, -10.23, 0), V(0, 0, 1), 5), math.radians(0), math.radians(90)), False)
sketch14.addGeometry(Part.ArcOfCircle(Part.Circle(V(54.5, -10.23, 0), V(0, 0, 1), 5), math.radians(-90), math.radians(0)), False)
sketch14.addGeometry(Part.ArcOfCircle(Part.Circle(V(54.5, -10.23, 0), V(0, 0, 1), 5), math.radians(180), math.radians(270)), False)
sketch14.addGeometry(Part.ArcOfCircle(Part.Circle(V(54.5, -10.23, 0), V(0, 0, 1), 5), math.radians(90), math.radians(180)), False)
sketch14.addConstraint(Sketcher.Constraint("Tangent", 0, 1, 1, 2))
sketch14.addConstraint(Sketcher.Constraint("Tangent", 1, 1, 2, 2))
sketch14.addConstraint(Sketcher.Constraint("Tangent", 2, 1, 3, 2))
sketch14.addConstraint(Sketcher.Constraint("Tangent", 3, 1, 0, 2))
sketch14.addConstraint(Sketcher.Constraint("Equal", 0, 1))
sketch14.addConstraint(Sketcher.Constraint("Horizontal", 3, 3, 0, 1))
sketch14.addConstraint(Sketcher.Constraint("Horizontal", 0, 1, 2, 1))
sketch14.addConstraint(Sketcher.Constraint("Vertical", 3, 3, 1, 1))
sketch14.addConstraint(Sketcher.Constraint("Vertical", 1, 1, 3, 1))
sketch14.addConstraint(Sketcher.Constraint("Radius", 0, 5.0))
sketch14.addConstraint(Sketcher.Constraint("DistanceX", -1, 1, 0, 3, 54.5))
sketch14.addConstraint(Sketcher.Constraint("DistanceY", 0, 3, -1, 1, 10.23))
doc.recompute()

subtractivepipe = body.newObject("PartDesign::SubtractivePipe", "SubtractivePipe")
subtractivepipe.Profile = sketch13
subtractivepipe.Spine = (sketch14, ["Edge1", "Edge2", "Edge3", "Edge4"])

doc.recompute()
